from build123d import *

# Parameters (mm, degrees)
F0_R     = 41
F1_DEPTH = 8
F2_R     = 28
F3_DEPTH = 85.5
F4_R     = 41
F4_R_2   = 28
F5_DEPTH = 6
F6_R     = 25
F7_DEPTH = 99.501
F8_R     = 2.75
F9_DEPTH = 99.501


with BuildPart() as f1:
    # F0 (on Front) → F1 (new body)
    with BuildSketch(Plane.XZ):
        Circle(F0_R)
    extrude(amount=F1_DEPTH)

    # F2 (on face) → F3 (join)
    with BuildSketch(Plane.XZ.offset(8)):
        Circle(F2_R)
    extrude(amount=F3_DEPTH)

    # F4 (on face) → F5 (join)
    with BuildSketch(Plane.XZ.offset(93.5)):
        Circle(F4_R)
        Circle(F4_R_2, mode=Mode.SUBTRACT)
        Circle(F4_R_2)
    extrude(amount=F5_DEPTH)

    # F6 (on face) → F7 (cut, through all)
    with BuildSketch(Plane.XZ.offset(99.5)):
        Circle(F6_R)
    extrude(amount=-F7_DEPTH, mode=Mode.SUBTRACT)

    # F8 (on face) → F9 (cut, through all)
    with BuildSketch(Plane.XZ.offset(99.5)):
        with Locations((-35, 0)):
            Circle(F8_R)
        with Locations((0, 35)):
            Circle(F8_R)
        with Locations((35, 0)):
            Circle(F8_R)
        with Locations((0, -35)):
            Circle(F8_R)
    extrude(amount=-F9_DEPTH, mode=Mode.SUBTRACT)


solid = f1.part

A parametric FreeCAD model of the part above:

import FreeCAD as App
import Part
import Sketcher

doc = App.newDocument("Part")
body = doc.addObject("PartDesign::Body", "Body")

# Sketch on XZ plane
sketch1 = body.newObject("Sketcher::SketchObject", "Sketch")
sketch1.AttachmentSupport = (doc.getObject("XZ_Plane"), [""])
sketch1.MapMode = "FlatFace"
sketch1.addGeometry(Part.Circle(App.Vector(0, 0, 0), App.Vector(0, 0, 1), 41), False)
sketch1.addConstraint([
    Sketcher.Constraint("Coincident", 0, 3, -1, 1),
    Sketcher.Constraint("Diameter", 0, 82.0),
])
pad1 = body.newObject("PartDesign::Pad", "Pad")
pad1.Profile = sketch1
pad1.Length = 8

# Sketch on XZ plane
sketch2 = body.newObject("Sketcher::SketchObject", "Sketch001")
sketch2.AttachmentSupport = (doc.getObject("XZ_Plane"), [""])
sketch2.MapMode = "FlatFace"
sketch2.AttachmentOffset = App.Placement(App.Vector(0, 0, 8), App.Rotation())
sketch2.addGeometry(Part.Circle(App.Vector(0, 0, 0), App.Vector(0, 0, 1), 28), False)
sketch2.addConstraint([
    Sketcher.Constraint("Coincident", 0, 3, -1, 1),
    Sketcher.Constraint("Diameter", 0, 56.0),
])
pad2 = body.newObject("PartDesign::Pad", "Pad001")
pad2.Profile = sketch2
pad2.Length = 85.5

# Sketch on XZ plane
sketch3 = body.newObject("Sketcher::SketchObject", "Sketch002")
sketch3.AttachmentSupport = (doc.getObject("XZ_Plane"), [""])
sketch3.MapMode = "FlatFace"
sketch3.AttachmentOffset = App.Placement(App.Vector(0, 0, 93.5), App.Rotation())
sketch3.addGeometry(Part.Circle(App.Vector(0, 0, 0), App.Vector(0, 0, 1), 41), False)
sketch3.addConstraint([
    Sketcher.Constraint("Coincident", 0, 3, -1, 1),
    Sketcher.Constraint("Diameter", 0, 82.0),
])
pad3 = body.newObject("PartDesign::Pad", "Pad002")
pad3.Profile = sketch3
pad3.Length = 6

# Sketch on XZ plane
sketch4 = body.newObject("Sketcher::SketchObject", "Sketch003")
sketch4.AttachmentSupport = (doc.getObject("XZ_Plane"), [""])
sketch4.MapMode = "FlatFace"
sketch4.AttachmentOffset = App.Placement(App.Vector(0, 0, 99.5), App.Rotation())
sketch4.addGeometry(Part.Circle(App.Vector(0, 0, 0), App.Vector(0, 0, 1), 25), False)
sketch4.addConstraint([
    Sketcher.Constraint("Coincident", 0, 3, -1, 1),
    Sketcher.Constraint("Diameter", 0, 50.0),
])
pocket1 = body.newObject("PartDesign::Pocket", "Pocket")
pocket1.Profile = sketch4
pocket1.Type = "ThroughAll"

# Sketch on XZ plane
sketch5 = body.newObject("Sketcher::SketchObject", "Sketch004")
sketch5.AttachmentSupport = (doc.getObject("XZ_Plane"), [""])
sketch5.MapMode = "FlatFace"
sketch5.AttachmentOffset = App.Placement(App.Vector(0, 0, 99.5), App.Rotation())
sketch5.addGeometry([
    Part.Circle(App.Vector(-35, 0, 0), App.Vector(0, 0, 1), 2.8),
    Part.Circle(App.Vector(0, 35, 0), App.Vector(0, 0, 1), 2.8),
    Part.Circle(App.Vector(35, 0, 0), App.Vector(0, 0, 1), 2.8),
    Part.Circle(App.Vector(0, -35, 0), App.Vector(0, 0, 1), 2.8),
], False)
sketch5.addConstraint([
    Sketcher.Constraint("Equal", 0, 1),
    Sketcher.Constraint("Equal", 1, 2),
    Sketcher.Constraint("Equal", 2, 3),
    Sketcher.Constraint("Symmetric", 0, 3, 2, 3, -1, 1),
    Sketcher.Constraint("Symmetric", 1, 3, 3, 3, -1, 1),
    Sketcher.Constraint("PointOnObject", 0, 3, -1),
    Sketcher.Constraint("PointOnObject", 1, 3, -2),
    Sketcher.Constraint("Diameter", 0, 5.5),
    Sketcher.Constraint("DistanceX", 0, 3, -1, 1, 35.0),
    Sketcher.Constraint("DistanceY", -1, 1, 1, 3, 35.0),
])
pocket2 = body.newObject("PartDesign::Pocket", "Pocket001")
pocket2.Profile = sketch5
pocket2.Type = "ThroughAll"

doc.recompute()
